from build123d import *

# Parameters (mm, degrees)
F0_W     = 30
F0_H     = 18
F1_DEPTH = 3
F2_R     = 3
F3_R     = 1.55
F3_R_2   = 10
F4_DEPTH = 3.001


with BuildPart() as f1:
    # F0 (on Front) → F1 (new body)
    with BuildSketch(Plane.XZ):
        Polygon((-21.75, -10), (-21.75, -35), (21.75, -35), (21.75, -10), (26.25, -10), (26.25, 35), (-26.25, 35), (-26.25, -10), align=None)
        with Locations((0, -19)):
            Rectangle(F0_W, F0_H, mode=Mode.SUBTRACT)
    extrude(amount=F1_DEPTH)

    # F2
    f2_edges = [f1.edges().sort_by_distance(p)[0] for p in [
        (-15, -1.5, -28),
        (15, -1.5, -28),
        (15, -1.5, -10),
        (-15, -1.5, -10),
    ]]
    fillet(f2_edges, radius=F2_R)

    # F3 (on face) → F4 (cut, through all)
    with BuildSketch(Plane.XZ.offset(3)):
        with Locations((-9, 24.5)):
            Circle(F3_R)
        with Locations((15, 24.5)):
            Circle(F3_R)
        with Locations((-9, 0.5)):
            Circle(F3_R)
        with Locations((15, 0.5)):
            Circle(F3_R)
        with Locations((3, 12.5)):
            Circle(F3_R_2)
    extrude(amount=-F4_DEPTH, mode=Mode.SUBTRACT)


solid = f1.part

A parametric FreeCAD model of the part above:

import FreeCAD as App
import Part
import Sketcher
Q = App.Units.Quantity


def edges_at(feature, points):
    """Names of the edges that pass closest to the given points."""
    edges = feature.Shape.Edges
    near = lambda p: min(range(len(edges)), key=lambda i: edges[i].distToShape(Part.Vertex(*p))[0])
    return sorted({f"Edge{near(p) + 1}" for p in points})


def add_polygon(sketch, points):
    """Adds a closed chain of lines whose ends are joined by coincident constraints."""
    first, n = sketch.GeometryCount, len(points)
    for a, b in zip(points, points[1:] + points[:1]):
        sketch.addGeometry(Part.LineSegment(App.Vector(*a, 0), App.Vector(*b, 0)), False)
    for i in range(n):
        sketch.addConstraint(Sketcher.Constraint("Coincident", first + i, 2, first + (i + 1) % n, 1))

doc = App.newDocument("Part")
body = doc.addObject("PartDesign::Body", "Body")

# Sketch on XZ plane
sketch1 = doc.addObject("Sketcher::SketchObject", "Sketch")
body.addObject(sketch1)
sketch1.AttachmentSupport = (doc.XZ_Plane, [""])
sketch1.MapMode = "FlatFace"
add_polygon(sketch1, [(-21.8, -10), (-21.8, -35), (21.8, -35), (21.8, -10), (26.2, -10), (26.2, 35), (-26.2, 35), (-26.2, -10)])  # lines 0-7
add_polygon(sketch1, [(15, -28), (-15, -28), (-15, -10), (15, -10)])  # lines 8-11
sketch1.addConstraint([
    Sketcher.Constraint("Vertical", 0),
    Sketcher.Constraint("Horizontal", 1),
    Sketcher.Constraint("Vertical", 2),
    Sketcher.Constraint("Horizontal", 3),
    Sketcher.Constraint("Vertical", 4),
    Sketcher.Constraint("Horizontal", 5),
    Sketcher.Constraint("Vertical", 6),
    Sketcher.Constraint("Horizontal", 7),
    Sketcher.Constraint("Horizontal", 8),
    Sketcher.Constraint("Vertical", 9),
    Sketcher.Constraint("Horizontal", 10),
    Sketcher.Constraint("Vertical", 11),
    Sketcher.Constraint("Symmetric", 3, 2, 6, 2, -2),
    Sketcher.Constraint("Horizontal", 7, 2, 9, 2),
    Sketcher.Constraint("Equal", 3, 7),
    Sketcher.Constraint("DistanceX", 8, 2, 8, 1, Q("30 mm")),
    Sketcher.Constraint("DistanceY", 0, 2, 0, 1, Q("25 mm")),
    Sketcher.Constraint("DistanceY", 4, 1, 4, 2, Q("45 mm")),
    Sketcher.Constraint("DistanceY", 9, 1, 9, 2, Q("18 mm")),
    Sketcher.Constraint("DistanceX", 1, 1, 1, 2, Q("43.5 mm")),
    Sketcher.Constraint("DistanceX", 3, 1, 3, 2, Q("4.5 mm")),
    Sketcher.Constraint("DistanceY", 0, 2, -1, 1, Q("35 mm")),
    Sketcher.Constraint("DistanceX", 8, 2, -1, 1, Q("15 mm")),
])
pad1 = doc.addObject("PartDesign::Pad", "Pad")
body.addObject(pad1)
pad1.Profile = sketch1
pad1.Length = 3
doc.recompute()

fillet = doc.addObject("PartDesign::Fillet", "Fillet")
body.addObject(fillet)
fillet.Base = (pad1, edges_at(pad1, [
    (-15, -1.5, -28),
    (15, -1.5, -28),
    (15, -1.5, -10),
    (-15, -1.5, -10),
]))
fillet.Radius = 3

# Sketch on XZ plane
sketch2 = doc.addObject("Sketcher::SketchObject", "Sketch001")
body.addObject(sketch2)
sketch2.AttachmentSupport = (doc.XZ_Plane, [""])
sketch2.MapMode = "FlatFace"
sketch2.AttachmentOffset = App.Placement(App.Vector(0, 0, 3), App.Rotation())
sketch2.addGeometry([
    Part.Circle(App.Vector(-9, 24.5, 0), App.Vector(0, 0, 1), 1.6),  # 0
    Part.Circle(App.Vector(15, 24.5, 0), App.Vector(0, 0, 1), 1.6),  # 1
    Part.Circle(App.Vector(-9, 0.5, 0), App.Vector(0, 0, 1), 1.6),  # 2
    Part.Circle(App.Vector(15, 0.5, 0), App.Vector(0, 0, 1), 1.6),  # 3
    Part.Circle(App.Vector(3, 12.5, 0), App.Vector(0, 0, 1), 10),  # 4
], False)
sketch2.addConstraint([
    Sketcher.Constraint("Equal", 0, 1),
    Sketcher.Constraint("Equal", 1, 2),
    Sketcher.Constraint("Equal", 2, 3),
    Sketcher.Constraint("Horizontal", 0, 3, 1, 3),
    Sketcher.Constraint("Horizontal", 2, 3, 3, 3),
    Sketcher.Constraint("Vertical", 0, 3, 2, 3),
    Sketcher.Constraint("Vertical", 1, 3, 3, 3),
    Sketcher.Constraint("Diameter", 4, Q("20 mm")),
    Sketcher.Constraint("Diameter", 0, Q("3.1 mm")),
    Sketcher.Constraint("DistanceX", 0, 3, -1, 1, Q("9 mm")),
    Sketcher.Constraint("DistanceX", -1, 1, 1, 3, Q("15 mm")),
    Sketcher.Constraint("DistanceX", -1, 1, 4, 3, Q("3 mm")),
    Sketcher.Constraint("DistanceY", 2, 3, 0, 3, Q("24 mm")),
    Sketcher.Constraint("DistanceY", 4, 3, 0, 3, Q("12 mm")),
    Sketcher.Constraint("DistanceY", -1, 1, 0, 3, Q("24.5 mm")),
])
pocket1 = doc.addObject("PartDesign::Pocket", "Pocket")
body.addObject(pocket1)
pocket1.Profile = sketch2
pocket1.Type = "ThroughAll"

doc.recompute()
